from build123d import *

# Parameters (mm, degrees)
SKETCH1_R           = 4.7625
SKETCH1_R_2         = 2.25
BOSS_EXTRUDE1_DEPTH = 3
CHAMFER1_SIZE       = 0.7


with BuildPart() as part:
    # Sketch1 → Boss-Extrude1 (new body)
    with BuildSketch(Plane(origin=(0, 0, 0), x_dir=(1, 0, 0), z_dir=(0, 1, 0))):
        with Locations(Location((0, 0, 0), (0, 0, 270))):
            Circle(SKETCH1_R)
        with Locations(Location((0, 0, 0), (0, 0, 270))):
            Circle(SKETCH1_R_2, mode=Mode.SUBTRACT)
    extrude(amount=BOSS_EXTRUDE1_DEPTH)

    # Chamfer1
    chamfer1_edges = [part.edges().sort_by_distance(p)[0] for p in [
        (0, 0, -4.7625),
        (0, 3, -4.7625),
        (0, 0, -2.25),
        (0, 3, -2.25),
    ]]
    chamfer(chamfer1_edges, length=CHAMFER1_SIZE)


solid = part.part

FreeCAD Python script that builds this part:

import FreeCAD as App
import Part
import Sketcher

V = App.Vector
Q = App.Units.Quantity


def edges_at(feature, points):
    """Names of the edges that pass closest to the given points."""
    edges = feature.Shape.Edges
    near = lambda p: min(range(len(edges)), key=lambda i: edges[i].distToShape(Part.Vertex(*p))[0])
    return sorted({f"Edge{near(p) + 1}" for p in points})

doc = App.newDocument("Part")
body = doc.addObject("PartDesign::Body", "Body")

# Sketch on XZ plane
sketch1 = doc.addObject("Sketcher::SketchObject", "Sketch")
body.addObject(sketch1)
sketch1.AttachmentSupport = (doc.XZ_Plane, [""])
sketch1.MapMode = "FlatFace"
sketch1.addGeometry(Part.Circle(V(0, 0, 0), V(0, 0, 1), 4.8), False)
sketch1.addGeometry(Part.Circle(V(0, 0, 0), V(0, 0, 1), 2.2), False)
sketch1.addConstraint(Sketcher.Constraint("Coincident", 0, 3, -1, 1))
sketch1.addConstraint(Sketcher.Constraint("Coincident", 1, 3, -1, 1))
sketch1.addConstraint(Sketcher.Constraint("Diameter", 1, Q("4.5 mm")))
sketch1.addConstraint(Sketcher.Constraint("Diameter", 0, Q("9.525 mm")))
pad1 = doc.addObject("PartDesign::Pad", "Pad")
body.addObject(pad1)
pad1.Profile = sketch1
pad1.Length = 3
pad1.Reversed = True
doc.recompute()

chamfer = doc.addObject("PartDesign::Chamfer", "Chamfer")
body.addObject(chamfer)
chamfer.Base = (pad1, edges_at(pad1, [
    (0, 0, -4.763),
    (0, 3, -4.763),
    (0, 0, -2.25),
    (0, 3, -2.25),
]))
chamfer.Size = 0.7

doc.recompute()
